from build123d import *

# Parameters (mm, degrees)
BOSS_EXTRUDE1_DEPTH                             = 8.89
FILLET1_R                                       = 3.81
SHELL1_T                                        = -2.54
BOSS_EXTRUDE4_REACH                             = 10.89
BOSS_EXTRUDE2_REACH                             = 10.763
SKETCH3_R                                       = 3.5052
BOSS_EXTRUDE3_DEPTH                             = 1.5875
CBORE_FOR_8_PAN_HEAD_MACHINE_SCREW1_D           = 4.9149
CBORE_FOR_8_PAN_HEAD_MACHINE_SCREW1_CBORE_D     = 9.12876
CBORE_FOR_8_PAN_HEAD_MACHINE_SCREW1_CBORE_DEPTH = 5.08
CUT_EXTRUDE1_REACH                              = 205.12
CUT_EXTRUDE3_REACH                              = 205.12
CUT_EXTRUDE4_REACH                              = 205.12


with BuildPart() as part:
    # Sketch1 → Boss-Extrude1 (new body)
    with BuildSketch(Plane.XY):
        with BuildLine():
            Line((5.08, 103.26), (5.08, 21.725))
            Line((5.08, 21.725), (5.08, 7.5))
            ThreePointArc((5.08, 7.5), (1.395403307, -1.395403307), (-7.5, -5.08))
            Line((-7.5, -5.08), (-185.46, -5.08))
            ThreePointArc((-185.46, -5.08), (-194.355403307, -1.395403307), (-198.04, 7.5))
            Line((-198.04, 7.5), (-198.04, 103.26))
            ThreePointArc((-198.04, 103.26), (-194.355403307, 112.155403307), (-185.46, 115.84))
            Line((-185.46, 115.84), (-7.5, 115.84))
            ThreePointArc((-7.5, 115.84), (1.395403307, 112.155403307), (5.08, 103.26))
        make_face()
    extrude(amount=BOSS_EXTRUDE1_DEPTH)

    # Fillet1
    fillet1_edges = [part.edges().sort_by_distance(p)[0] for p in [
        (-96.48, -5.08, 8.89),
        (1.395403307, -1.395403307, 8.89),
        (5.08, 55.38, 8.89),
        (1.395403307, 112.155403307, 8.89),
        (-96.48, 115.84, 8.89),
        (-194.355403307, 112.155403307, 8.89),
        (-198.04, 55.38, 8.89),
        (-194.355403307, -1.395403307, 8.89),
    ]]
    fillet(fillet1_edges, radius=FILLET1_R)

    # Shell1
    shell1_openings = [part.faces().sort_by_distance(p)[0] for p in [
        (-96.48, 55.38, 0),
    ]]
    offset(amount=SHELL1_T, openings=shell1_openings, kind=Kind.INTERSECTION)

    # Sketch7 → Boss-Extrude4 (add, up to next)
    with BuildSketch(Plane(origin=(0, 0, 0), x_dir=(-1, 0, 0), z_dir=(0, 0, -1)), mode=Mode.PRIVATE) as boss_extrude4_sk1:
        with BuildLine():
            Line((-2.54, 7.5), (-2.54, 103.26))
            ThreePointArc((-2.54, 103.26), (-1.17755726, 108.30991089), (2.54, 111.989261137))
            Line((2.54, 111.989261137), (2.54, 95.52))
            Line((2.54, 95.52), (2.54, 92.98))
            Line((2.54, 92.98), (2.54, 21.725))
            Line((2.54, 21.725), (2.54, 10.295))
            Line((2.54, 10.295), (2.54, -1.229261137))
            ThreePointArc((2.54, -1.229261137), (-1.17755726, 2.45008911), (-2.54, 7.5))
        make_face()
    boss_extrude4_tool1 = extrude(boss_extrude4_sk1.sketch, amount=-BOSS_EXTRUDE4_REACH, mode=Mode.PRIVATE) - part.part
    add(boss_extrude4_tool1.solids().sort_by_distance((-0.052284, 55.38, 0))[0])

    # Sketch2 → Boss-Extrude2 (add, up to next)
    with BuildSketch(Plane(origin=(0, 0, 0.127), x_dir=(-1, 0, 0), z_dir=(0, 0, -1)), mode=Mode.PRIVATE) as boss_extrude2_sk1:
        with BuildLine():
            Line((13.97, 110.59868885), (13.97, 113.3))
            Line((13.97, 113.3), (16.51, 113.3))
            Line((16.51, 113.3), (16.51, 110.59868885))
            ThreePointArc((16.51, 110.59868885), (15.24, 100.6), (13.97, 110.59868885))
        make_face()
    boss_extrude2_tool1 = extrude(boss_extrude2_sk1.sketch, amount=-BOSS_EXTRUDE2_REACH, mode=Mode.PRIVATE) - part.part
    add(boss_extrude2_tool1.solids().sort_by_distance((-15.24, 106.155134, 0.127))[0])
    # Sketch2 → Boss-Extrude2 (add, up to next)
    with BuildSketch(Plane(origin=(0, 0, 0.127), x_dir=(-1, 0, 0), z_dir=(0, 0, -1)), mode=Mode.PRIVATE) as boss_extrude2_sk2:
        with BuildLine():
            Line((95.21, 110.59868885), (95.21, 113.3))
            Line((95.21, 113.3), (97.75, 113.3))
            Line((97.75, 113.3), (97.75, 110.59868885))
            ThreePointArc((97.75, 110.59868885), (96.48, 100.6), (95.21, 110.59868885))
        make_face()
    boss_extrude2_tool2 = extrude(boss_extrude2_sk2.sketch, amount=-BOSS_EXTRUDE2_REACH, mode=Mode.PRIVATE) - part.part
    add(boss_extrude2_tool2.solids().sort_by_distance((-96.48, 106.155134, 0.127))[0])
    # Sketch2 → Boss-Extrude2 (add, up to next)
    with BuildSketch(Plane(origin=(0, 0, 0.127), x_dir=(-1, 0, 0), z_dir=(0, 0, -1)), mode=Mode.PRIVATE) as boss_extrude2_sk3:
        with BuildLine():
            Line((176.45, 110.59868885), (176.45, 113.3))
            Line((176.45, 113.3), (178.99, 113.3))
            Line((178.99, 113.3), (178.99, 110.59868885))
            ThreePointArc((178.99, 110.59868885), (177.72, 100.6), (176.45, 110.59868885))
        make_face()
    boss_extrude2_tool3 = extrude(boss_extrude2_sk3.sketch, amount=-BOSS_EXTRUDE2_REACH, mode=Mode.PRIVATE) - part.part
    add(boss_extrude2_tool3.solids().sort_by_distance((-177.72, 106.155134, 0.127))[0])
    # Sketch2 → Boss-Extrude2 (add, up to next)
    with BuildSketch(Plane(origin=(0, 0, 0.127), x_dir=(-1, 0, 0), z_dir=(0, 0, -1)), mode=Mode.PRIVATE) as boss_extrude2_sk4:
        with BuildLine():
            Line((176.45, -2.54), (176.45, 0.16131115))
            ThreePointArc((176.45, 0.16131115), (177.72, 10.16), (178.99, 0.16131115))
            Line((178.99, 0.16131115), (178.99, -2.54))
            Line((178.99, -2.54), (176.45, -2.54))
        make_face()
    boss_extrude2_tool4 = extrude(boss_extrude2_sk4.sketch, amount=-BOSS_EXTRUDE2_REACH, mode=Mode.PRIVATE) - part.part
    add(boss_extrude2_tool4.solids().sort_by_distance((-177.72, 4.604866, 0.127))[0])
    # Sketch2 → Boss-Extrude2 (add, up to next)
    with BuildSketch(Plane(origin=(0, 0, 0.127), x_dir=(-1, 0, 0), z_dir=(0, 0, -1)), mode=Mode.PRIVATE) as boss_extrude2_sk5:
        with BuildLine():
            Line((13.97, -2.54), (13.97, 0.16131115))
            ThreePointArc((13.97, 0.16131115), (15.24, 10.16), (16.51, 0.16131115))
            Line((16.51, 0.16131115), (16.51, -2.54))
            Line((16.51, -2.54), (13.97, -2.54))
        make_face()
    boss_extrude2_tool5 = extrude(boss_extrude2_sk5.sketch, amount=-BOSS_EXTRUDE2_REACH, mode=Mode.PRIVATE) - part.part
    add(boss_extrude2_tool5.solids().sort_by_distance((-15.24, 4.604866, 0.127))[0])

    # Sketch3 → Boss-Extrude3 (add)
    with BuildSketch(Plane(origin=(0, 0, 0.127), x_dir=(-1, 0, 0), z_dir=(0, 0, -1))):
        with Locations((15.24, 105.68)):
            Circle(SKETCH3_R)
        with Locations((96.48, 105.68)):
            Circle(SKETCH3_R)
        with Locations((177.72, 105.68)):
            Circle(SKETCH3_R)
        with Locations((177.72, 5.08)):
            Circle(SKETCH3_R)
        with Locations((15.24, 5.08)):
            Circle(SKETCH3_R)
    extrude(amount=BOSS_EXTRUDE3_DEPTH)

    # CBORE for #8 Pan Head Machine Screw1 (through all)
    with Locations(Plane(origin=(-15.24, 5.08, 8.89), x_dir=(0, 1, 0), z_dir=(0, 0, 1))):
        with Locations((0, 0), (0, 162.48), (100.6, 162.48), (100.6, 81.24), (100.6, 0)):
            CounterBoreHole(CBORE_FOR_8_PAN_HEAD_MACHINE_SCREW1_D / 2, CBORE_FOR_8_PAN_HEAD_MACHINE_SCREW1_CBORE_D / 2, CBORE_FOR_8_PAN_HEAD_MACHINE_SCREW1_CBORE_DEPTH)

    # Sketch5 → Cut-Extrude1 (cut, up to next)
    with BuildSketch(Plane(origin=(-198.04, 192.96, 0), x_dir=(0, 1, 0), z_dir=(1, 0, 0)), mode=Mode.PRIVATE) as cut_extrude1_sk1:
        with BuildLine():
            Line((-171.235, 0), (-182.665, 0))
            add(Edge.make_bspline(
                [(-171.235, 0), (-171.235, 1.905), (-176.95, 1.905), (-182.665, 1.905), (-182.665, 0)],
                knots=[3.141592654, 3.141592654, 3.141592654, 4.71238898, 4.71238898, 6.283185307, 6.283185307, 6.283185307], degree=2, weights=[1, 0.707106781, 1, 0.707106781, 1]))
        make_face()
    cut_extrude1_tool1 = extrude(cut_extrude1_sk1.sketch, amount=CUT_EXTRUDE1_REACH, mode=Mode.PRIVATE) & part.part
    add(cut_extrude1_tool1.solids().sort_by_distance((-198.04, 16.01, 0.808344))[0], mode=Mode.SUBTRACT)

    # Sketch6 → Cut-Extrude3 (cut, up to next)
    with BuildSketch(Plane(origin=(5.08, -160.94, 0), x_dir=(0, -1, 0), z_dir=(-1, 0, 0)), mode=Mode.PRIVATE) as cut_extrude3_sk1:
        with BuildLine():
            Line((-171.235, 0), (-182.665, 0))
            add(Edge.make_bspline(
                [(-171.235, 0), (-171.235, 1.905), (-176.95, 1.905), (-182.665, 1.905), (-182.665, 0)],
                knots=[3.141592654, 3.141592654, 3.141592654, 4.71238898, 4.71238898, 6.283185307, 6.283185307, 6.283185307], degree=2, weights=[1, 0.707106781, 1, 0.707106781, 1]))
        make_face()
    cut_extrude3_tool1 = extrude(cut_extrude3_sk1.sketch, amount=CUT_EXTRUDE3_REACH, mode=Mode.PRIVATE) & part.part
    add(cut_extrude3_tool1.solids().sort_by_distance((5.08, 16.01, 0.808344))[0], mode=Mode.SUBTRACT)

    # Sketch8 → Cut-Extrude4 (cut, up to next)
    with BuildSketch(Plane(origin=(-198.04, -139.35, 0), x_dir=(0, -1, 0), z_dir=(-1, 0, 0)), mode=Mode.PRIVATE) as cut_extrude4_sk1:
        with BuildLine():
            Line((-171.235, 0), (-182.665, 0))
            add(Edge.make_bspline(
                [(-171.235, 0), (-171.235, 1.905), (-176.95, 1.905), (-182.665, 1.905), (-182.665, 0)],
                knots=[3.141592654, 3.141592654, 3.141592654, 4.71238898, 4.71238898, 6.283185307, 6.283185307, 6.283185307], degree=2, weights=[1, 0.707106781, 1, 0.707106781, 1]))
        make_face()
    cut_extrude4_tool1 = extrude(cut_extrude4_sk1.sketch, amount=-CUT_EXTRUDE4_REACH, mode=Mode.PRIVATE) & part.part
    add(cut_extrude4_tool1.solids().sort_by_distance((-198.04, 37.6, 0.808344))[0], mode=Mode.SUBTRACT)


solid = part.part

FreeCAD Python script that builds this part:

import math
import FreeCAD as App
import Part
import Sketcher
from FreeCAD import Vector
Q = App.Units.Quantity


def edges_at(feature, points):
    """Names of the edges that pass closest to the given points."""
    edges = feature.Shape.Edges
    near = lambda p: min(range(len(edges)), key=lambda i: edges[i].distToShape(Part.Vertex(*p))[0])
    return sorted({f"Edge{near(p) + 1}" for p in points})


def faces_at(feature, points):
    """Names of the faces that lie closest to the given points."""
    faces = feature.Shape.Faces
    near = lambda p: min(range(len(faces)), key=lambda i: faces[i].distToShape(Part.Vertex(*p))[0])
    return sorted({f"Face{near(p) + 1}" for p in points})

doc = App.newDocument("Part")
body = doc.addObject("PartDesign::Body", "Body")

# Sketch on XY plane
sketch1 = body.newObject("Sketcher::SketchObject", "Sketch")
sketch1.AttachmentSupport = (doc.getObject("XY_Plane"), [""])
sketch1.MapMode = "FlatFace"
sketch1.addGeometry([
    Part.LineSegment(Vector(5, 8, 0), Vector(5, 103, 0)),  # 0
    Part.ArcOfCircle(Part.Circle(Vector(-8, 103, 0), Vector(0, 0, 1), 13), math.radians(0), math.radians(90)),  # 1
    Part.LineSegment(Vector(-8, 116, 0), Vector(-185, 116, 0)),  # 2
    Part.ArcOfCircle(Part.Circle(Vector(-185, 103, 0), Vector(0, 0, 1), 13), math.radians(90), math.radians(180)),  # 3
    Part.LineSegment(Vector(-198, 103, 0), Vector(-198, 8, 0)),  # 4
    Part.ArcOfCircle(Part.Circle(Vector(-185, 8, 0), Vector(0, 0, 1), 13), math.radians(-180), math.radians(-90)),  # 5
    Part.LineSegment(Vector(-185, -5, 0), Vector(-8, -5, 0)),  # 6
    Part.ArcOfCircle(Part.Circle(Vector(-8, 8, 0), Vector(0, 0, 1), 13), math.radians(-90), math.radians(0)),  # 7
], False)
sketch1.addConstraint([
    Sketcher.Constraint("Tangent", 0, 2, 1, 1),
    Sketcher.Constraint("Tangent", 1, 2, 2, 1),
    Sketcher.Constraint("Tangent", 2, 2, 3, 1),
    Sketcher.Constraint("Tangent", 3, 2, 4, 1),
    Sketcher.Constraint("Tangent", 4, 2, 5, 1),
    Sketcher.Constraint("Tangent", 5, 2, 6, 1),
    Sketcher.Constraint("Tangent", 6, 2, 7, 1),
    Sketcher.Constraint("Tangent", 7, 2, 0, 1),
    Sketcher.Constraint("Vertical", 0),
    Sketcher.Constraint("Horizontal", 2),
    Sketcher.Constraint("Vertical", 4),
    Sketcher.Constraint("Horizontal", 6),
    Sketcher.Constraint("Equal", 1, 3),
    Sketcher.Constraint("Equal", 3, 5),
    Sketcher.Constraint("Equal", 5, 7),
    Sketcher.Constraint("DistanceX", -1, 1, 0, 2, Q("0.2 in")),
    Sketcher.Constraint("DistanceY", 5, 2, -1, 1, Q("0.2 in")),
    Sketcher.Constraint("Radius", 1, 12.58),
    Sketcher.Constraint("DistanceX", 2, 2, 2, 1, 177.96),
    Sketcher.Constraint("DistanceY", 0, 1, 0, 2, 95.76),
])
pad1 = body.newObject("PartDesign::Pad", "Pad")
pad1.Profile = sketch1
pad1.Length = Q("0.35 in")
doc.recompute()

fillet = body.newObject("PartDesign::Fillet", "Fillet")
fillet.Base = (pad1, edges_at(pad1, [
    (-96.48, -5.08, 8.89),
    (1.395, -1.395, 8.89),
    (5.08, 55.38, 8.89),
    (1.395, 112.155, 8.89),
    (-96.48, 115.84, 8.89),
    (-194.355, 112.155, 8.89),
    (-198.04, 55.38, 8.89),
    (-194.355, -1.395, 8.89),
]))
fillet.Radius = Q("0.15 in")
doc.recompute()

thickness = body.newObject("PartDesign::Thickness", "Thickness")
thickness.Base = (fillet, faces_at(fillet, [(-96.48, 55.38, 0)]))
thickness.Value = Q("0.1 in")
thickness.Reversed = True
thickness.Join = "Intersection"

# Sketch on XY plane
sketch2 = body.newObject("Sketcher::SketchObject", "Sketch001")
sketch2.AttachmentSupport = (doc.getObject("XY_Plane"), [""])
sketch2.MapMode = "FlatFace"
sketch2.addGeometry([
    Part.LineSegment(Vector(3, 103, 0), Vector(3, 8, 0)),
    Part.ArcOfCircle(Part.Circle(Vector(-8, 8, 0), Vector(0, 0, 1), 10), math.radians(-60), math.radians(0)),
    Part.LineSegment(Vector(-3, -1, 0), Vector(-3, 112, 0)),
    Part.ArcOfCircle(Part.Circle(Vector(-8, 103, 0), Vector(0, 0, 1), 10), math.radians(0), math.radians(60)),
], False)
sketch2.addConstraint([
    Sketcher.Constraint("Tangent", 0, 2, 1, 2),
    Sketcher.Constraint("Coincident", 1, 1, 2, 1),
    Sketcher.Constraint("Coincident", 2, 2, 3, 2),
    Sketcher.Constraint("Tangent", 3, 1, 0, 1),
    Sketcher.Constraint("Vertical", 0),
    Sketcher.Constraint("Vertical", 2),
    Sketcher.Constraint("Equal", 1, 3),
    Sketcher.Constraint("DistanceX", -1, 1, 0, 2, Q("0.1 in")),
    Sketcher.Constraint("DistanceX", 1, 1, -1, 1, Q("0.1 in")),
    Sketcher.Constraint("Radius", 1, 10.04),
    Sketcher.Constraint("DistanceY", 0, 2, 0, 1, 95.76),
    Sketcher.Constraint("DistanceY", -1, 1, 1, 3, 7.5),
])
pad2 = body.newObject("PartDesign::Pad", "Pad001")
pad2.Profile = sketch2
pad2.Type = "UpToFirst"

# Sketch on XY plane
sketch3 = body.newObject("Sketcher::SketchObject", "Sketch002")
sketch3.AttachmentSupport = (doc.getObject("XY_Plane"), [""])
sketch3.MapMode = "FlatFace"
sketch3.AttachmentOffset = App.Placement(Vector(0, 0, 0.005 * 25.4), App.Rotation())
sketch3.addGeometry([
    Part.LineSegment(Vector(-14, 113.3, 0), Vector(-14, 110.6, 0)),
    Part.ArcOfCircle(Part.Circle(Vector(-15.2, 105.7, 0), Vector(0, 0, 1), 5.1), math.radians(104), math.radians(436)),
    Part.LineSegment(Vector(-16.5, 110.6, 0), Vector(-16.5, 113.3, 0)),
    Part.LineSegment(Vector(-16.5, 113.3, 0), Vector(-14, 113.3, 0)),
], False)
sketch3.addConstraint([
    Sketcher.Constraint("Coincident", 0, 2, 1, 2),
    Sketcher.Constraint("Coincident", 1, 1, 2, 1),
    Sketcher.Constraint("Coincident", 2, 2, 3, 1),
    Sketcher.Constraint("Coincident", 3, 2, 0, 1),
    Sketcher.Constraint("Vertical", 0),
    Sketcher.Constraint("Vertical", 2),
    Sketcher.Constraint("Horizontal", 3),
    Sketcher.Constraint("Horizontal", 0, 2, 1, 1),
    Sketcher.Constraint("Radius", 1, Q("0.2 in")),
    Sketcher.Constraint("DistanceX", 3, 1, 3, 2, Q("0.1 in")),
    Sketcher.Constraint("DistanceX", 1, 3, -1, 1, Q("0.6 in")),
    Sketcher.Constraint("DistanceY", 1, 3, 2, 2, Q("0.3 in")),
    Sketcher.Constraint("DistanceY", -1, 1, 1, 3, 105.68),
])
pad3 = body.newObject("PartDesign::Pad", "Pad002")
pad3.Profile = sketch3
pad3.Type = "UpToFirst"

# Sketch on XY plane
sketch4 = body.newObject("Sketcher::SketchObject", "Sketch003")
sketch4.AttachmentSupport = (doc.getObject("XY_Plane"), [""])
sketch4.MapMode = "FlatFace"
sketch4.AttachmentOffset = App.Placement(Vector(0, 0, 0.005 * 25.4), App.Rotation())
sketch4.addGeometry([
    Part.LineSegment(Vector(-95.2, 113.3, 0), Vector(-95.2, 110.6, 0)),
    Part.ArcOfCircle(Part.Circle(Vector(-96.5, 105.7, 0), Vector(0, 0, 1), 5.1), math.radians(104), math.radians(436)),
    Part.LineSegment(Vector(-97.8, 110.6, 0), Vector(-97.8, 113.3, 0)),
    Part.LineSegment(Vector(-97.8, 113.3, 0), Vector(-95.2, 113.3, 0)),
], False)
sketch4.addConstraint([
    Sketcher.Constraint("Coincident", 0, 2, 1, 2),
    Sketcher.Constraint("Coincident", 1, 1, 2, 1),
    Sketcher.Constraint("Coincident", 2, 2, 3, 1),
    Sketcher.Constraint("Coincident", 3, 2, 0, 1),
    Sketcher.Constraint("Vertical", 0),
    Sketcher.Constraint("Vertical", 2),
    Sketcher.Constraint("Horizontal", 3),
    Sketcher.Constraint("Horizontal", 0, 2, 1, 1),
    Sketcher.Constraint("Radius", 1, Q("0.2 in")),
    Sketcher.Constraint("DistanceX", 3, 1, 3, 2, Q("0.1 in")),
    Sketcher.Constraint("DistanceY", 1, 3, 2, 2, Q("0.3 in")),
    Sketcher.Constraint("DistanceX", 1, 3, -1, 1, 96.48),
    Sketcher.Constraint("DistanceY", -1, 1, 1, 3, 105.68),
])
pad4 = body.newObject("PartDesign::Pad", "Pad003")
pad4.Profile = sketch4
pad4.Type = "UpToFirst"

# Sketch on XY plane
sketch5 = body.newObject("Sketcher::SketchObject", "Sketch004")
sketch5.AttachmentSupport = (doc.getObject("XY_Plane"), [""])
sketch5.MapMode = "FlatFace"
sketch5.AttachmentOffset = App.Placement(Vector(0, 0, 0.005 * 25.4), App.Rotation())
sketch5.addGeometry([
    Part.LineSegment(Vector(-176.4, 113.3, 0), Vector(-176.4, 110.6, 0)),
    Part.ArcOfCircle(Part.Circle(Vector(-177.7, 105.7, 0), Vector(0, 0, 1), 5.1), math.radians(104), math.radians(436)),
    Part.LineSegment(Vector(-179, 110.6, 0), Vector(-179, 113.3, 0)),
    Part.LineSegment(Vector(-179, 113.3, 0), Vector(-176.4, 113.3, 0)),
], False)
sketch5.addConstraint([
    Sketcher.Constraint("Coincident", 0, 2, 1, 2),
    Sketcher.Constraint("Coincident", 1, 1, 2, 1),
    Sketcher.Constraint("Coincident", 2, 2, 3, 1),
    Sketcher.Constraint("Coincident", 3, 2, 0, 1),
    Sketcher.Constraint("Vertical", 0),
    Sketcher.Constraint("Vertical", 2),
    Sketcher.Constraint("Horizontal", 3),
    Sketcher.Constraint("Horizontal", 0, 2, 1, 1),
    Sketcher.Constraint("Radius", 1, Q("0.2 in")),
    Sketcher.Constraint("DistanceX", 3, 1, 3, 2, Q("0.1 in")),
    Sketcher.Constraint("DistanceY", 1, 3, 2, 2, Q("0.3 in")),
    Sketcher.Constraint("DistanceX", 1, 3, -1, 1, 177.72),
    Sketcher.Constraint("DistanceY", -1, 1, 1, 3, 105.68),
])
pad5 = body.newObject("PartDesign::Pad", "Pad004")
pad5.Profile = sketch5
pad5.Type = "UpToFirst"

# Sketch on XY plane
sketch6 = body.newObject("Sketcher::SketchObject", "Sketch005")
sketch6.AttachmentSupport = (doc.getObject("XY_Plane"), [""])
sketch6.MapMode = "FlatFace"
sketch6.AttachmentOffset = App.Placement(Vector(0, 0, 0.005 * 25.4), App.Rotation())
sketch6.addGeometry([
    Part.LineSegment(Vector(-176.4, 0.2, 0), Vector(-176.4, -2.5, 0)),
    Part.LineSegment(Vector(-176.4, -2.5, 0), Vector(-179, -2.5, 0)),
    Part.LineSegment(Vector(-179, -2.5, 0), Vector(-179, 0.2, 0)),
    Part.ArcOfCircle(Part.Circle(Vector(-177.7, 5.1, 0), Vector(0, 0, 1), 5.1), math.radians(-76), math.radians(256)),
], False)
sketch6.addConstraint([
    Sketcher.Constraint("Coincident", 0, 2, 1, 1),
    Sketcher.Constraint("Coincident", 1, 2, 2, 1),
    Sketcher.Constraint("Coincident", 2, 2, 3, 2),
    Sketcher.Constraint("Coincident", 3, 1, 0, 1),
    Sketcher.Constraint("Vertical", 0),
    Sketcher.Constraint("Horizontal", 1),
    Sketcher.Constraint("Vertical", 2),
    Sketcher.Constraint("Horizontal", 2, 2, 3, 1),
    Sketcher.Constraint("Radius", 3, Q("0.2 in")),
    Sketcher.Constraint("DistanceX", 1, 2, 1, 1, Q("0.1 in")),
    Sketcher.Constraint("DistanceY", -1, 1, 3, 3, Q("0.2 in")),
    Sketcher.Constraint("DistanceY", 0, 2, -1, 1, Q("0.1 in")),
    Sketcher.Constraint("DistanceX", 3, 3, -1, 1, 177.72),
])
pad6 = body.newObject("PartDesign::Pad", "Pad005")
pad6.Profile = sketch6
pad6.Type = "UpToFirst"

# Sketch on XY plane
sketch7 = body.newObject("Sketcher::SketchObject", "Sketch006")
sketch7.AttachmentSupport = (doc.getObject("XY_Plane"), [""])
sketch7.MapMode = "FlatFace"
sketch7.AttachmentOffset = App.Placement(Vector(0, 0, 0.005 * 25.4), App.Rotation())
sketch7.addGeometry([
    Part.LineSegment(Vector(-14, 0.2, 0), Vector(-14, -2.5, 0)),
    Part.LineSegment(Vector(-14, -2.5, 0), Vector(-16.5, -2.5, 0)),
    Part.LineSegment(Vector(-16.5, -2.5, 0), Vector(-16.5, 0.2, 0)),
    Part.ArcOfCircle(Part.Circle(Vector(-15.2, 5.1, 0), Vector(0, 0, 1), 5.1), math.radians(-76), math.radians(256)),
], False)
sketch7.addConstraint([
    Sketcher.Constraint("Coincident", 0, 2, 1, 1),
    Sketcher.Constraint("Coincident", 1, 2, 2, 1),
    Sketcher.Constraint("Coincident", 2, 2, 3, 2),
    Sketcher.Constraint("Coincident", 3, 1, 0, 1),
    Sketcher.Constraint("Vertical", 0),
    Sketcher.Constraint("Horizontal", 1),
    Sketcher.Constraint("Vertical", 2),
    Sketcher.Constraint("Horizontal", 2, 2, 3, 1),
    Sketcher.Constraint("Radius", 3, Q("0.2 in")),
    Sketcher.Constraint("DistanceX", 1, 2, 1, 1, Q("0.1 in")),
    Sketcher.Constraint("DistanceX", 3, 3, -1, 1, Q("0.6 in")),
    Sketcher.Constraint("DistanceY", -1, 1, 3, 3, Q("0.2 in")),
    Sketcher.Constraint("DistanceY", 0, 2, -1, 1, Q("0.1 in")),
])
pad7 = body.newObject("PartDesign::Pad", "Pad006")
pad7.Profile = sketch7
pad7.Type = "UpToFirst"

# Sketch on XY plane
sketch8 = body.newObject("Sketcher::SketchObject", "Sketch007")
sketch8.AttachmentSupport = (doc.getObject("XY_Plane"), [""])
sketch8.MapMode = "FlatFace"
sketch8.AttachmentOffset = App.Placement(Vector(0, 0, 0.005 * 25.4), App.Rotation())
sketch8.addGeometry([
    Part.Circle(Vector(-15.2, 105.7, 0), Vector(0, 0, 1), 3.5),  # 0
    Part.Circle(Vector(-96.5, 105.7, 0), Vector(0, 0, 1), 3.5),  # 1
    Part.Circle(Vector(-177.7, 105.7, 0), Vector(0, 0, 1), 3.5),  # 2
    Part.Circle(Vector(-177.7, 5.1, 0), Vector(0, 0, 1), 3.5),  # 3
    Part.Circle(Vector(-15.2, 5.1, 0), Vector(0, 0, 1), 3.5),  # 4
], False)
sketch8.addConstraint([
    Sketcher.Constraint("Equal", 0, 1),
    Sketcher.Constraint("Equal", 1, 2),
    Sketcher.Constraint("Equal", 2, 3),
    Sketcher.Constraint("Equal", 3, 4),
    Sketcher.Constraint("Horizontal", 0, 3, 1, 3),
    Sketcher.Constraint("Horizontal", 1, 3, 2, 3),
    Sketcher.Constraint("Horizontal", 3, 3, 4, 3),
    Sketcher.Constraint("Vertical", 2, 3, 3, 3),
    Sketcher.Constraint("Vertical", 0, 3, 4, 3),
    Sketcher.Constraint("Diameter", 0, Q("0.276 in")),
    Sketcher.Constraint("DistanceX", 0, 3, -1, 1, Q("0.6 in")),
    Sketcher.Constraint("DistanceY", -1, 1, 3, 3, Q("0.2 in")),
    Sketcher.Constraint("DistanceY", -1, 1, 0, 3, 105.68),
    Sketcher.Constraint("DistanceX", 1, 3, -1, 1, 96.48),
    Sketcher.Constraint("DistanceX", 2, 3, -1, 1, 177.72),
])
pad8 = body.newObject("PartDesign::Pad", "Pad007")
pad8.Profile = sketch8
pad8.Length = Q("0.0625 in")
pad8.Reversed = True

# Sketch on XY plane
sketch9 = body.newObject("Sketcher::SketchObject", "Sketch008")
sketch9.AttachmentSupport = (doc.getObject("XY_Plane"), [""])
sketch9.MapMode = "FlatFace"
sketch9.AttachmentOffset = App.Placement(Vector(0, 0, 0.35 * 25.4), App.Rotation())
sketch9.addGeometry([
    Part.Circle(Vector(-15.2, 5.1, 0), Vector(0, 0, 1), 2.5),  # 0
    Part.Circle(Vector(-177.7, 5.1, 0), Vector(0, 0, 1), 2.5),  # 1
    Part.Circle(Vector(-177.7, 105.7, 0), Vector(0, 0, 1), 2.5),  # 2
    Part.Circle(Vector(-96.5, 105.7, 0), Vector(0, 0, 1), 2.5),  # 3
    Part.Circle(Vector(-15.2, 105.7, 0), Vector(0, 0, 1), 2.5),  # 4
], False)
sketch9.addConstraint([
    Sketcher.Constraint("Equal", 0, 1),
    Sketcher.Constraint("Equal", 1, 2),
    Sketcher.Constraint("Equal", 2, 3),
    Sketcher.Constraint("Equal", 3, 4),
    Sketcher.Constraint("Horizontal", 0, 3, 1, 3),
    Sketcher.Constraint("Horizontal", 2, 3, 3, 3),
    Sketcher.Constraint("Horizontal", 3, 3, 4, 3),
    Sketcher.Constraint("Vertical", 1, 3, 2, 3),
    Sketcher.Constraint("Vertical", 0, 3, 4, 3),
    Sketcher.Constraint("Diameter", 0, Q("0.1935 in")),
    Sketcher.Constraint("DistanceX", 0, 3, -1, 1, Q("0.6 in")),
    Sketcher.Constraint("DistanceY", -1, 1, 0, 3, Q("0.2 in")),
    Sketcher.Constraint("DistanceX", 1, 3, -1, 1, 177.72),
    Sketcher.Constraint("DistanceY", -1, 1, 2, 3, 105.68),
    Sketcher.Constraint("DistanceX", 3, 3, -1, 1, 96.48),
])
doc.recompute()
hole = body.newObject("PartDesign::Hole", "Hole")
hole.Profile = sketch9
hole.ThreadType = "None"
hole.Diameter = Q("0.1935 in")
hole.DepthType = "ThroughAll"
hole.HoleCutType = "Counterbore"
hole.HoleCutDiameter = Q("0.3594 in")
hole.HoleCutDepth = Q("0.2 in")

# Sketch on YZ plane
sketch10 = body.newObject("Sketcher::SketchObject", "Sketch009")
sketch10.AttachmentSupport = (doc.getObject("YZ_Plane"), [""])
sketch10.MapMode = "FlatFace"
sketch10.AttachmentOffset = App.Placement(Vector(0, 0, -198.04), App.Rotation())
sketch10.addGeometry([
    Part.LineSegment(Vector(10.295, 0, 0), Vector(21.725, 0, 0)),
    Part.BSplineCurve([Vector(21.725, 0, 0), Vector(21.725, 1.905, 0), Vector(16.01, 1.905, 0), Vector(10.295, 1.905, 0), Vector(10.295, 0, 0)], [3, 2, 3], [3.141592654, 4.71238898, 6.283185307], False, 2, [1, 0.707106781, 1, 0.707106781, 1], False),
], False)
sketch10.addConstraint([
    Sketcher.Constraint("Block", 1),
    Sketcher.Constraint("Coincident", 0, 1, 1, 2),
    Sketcher.Constraint("Coincident", 1, 1, 0, 2),
])
pocket1 = body.newObject("PartDesign::Pocket", "Pocket")
pocket1.Profile = sketch10
pocket1.Type = "UpToFirst"
pocket1.Reversed = True

# Sketch on YZ plane
sketch11 = body.newObject("Sketcher::SketchObject", "Sketch010")
sketch11.AttachmentSupport = (doc.getObject("YZ_Plane"), [""])
sketch11.MapMode = "FlatFace"
sketch11.AttachmentOffset = App.Placement(Vector(0, 0, 0.2 * 25.4), App.Rotation())
sketch11.addGeometry([
    Part.LineSegment(Vector(21.725, 0, 0), Vector(10.295, 0, 0)),
    Part.BSplineCurve([Vector(10.295, 0, 0), Vector(10.295, 1.905, 0), Vector(16.01, 1.905, 0), Vector(21.725, 1.905, 0), Vector(21.725, 0, 0)], [3, 2, 3], [3.141592654, 4.71238898, 6.283185307], False, 2, [1, 0.707106781, 1, 0.707106781, 1], False),
], False)
sketch11.addConstraint([
    Sketcher.Constraint("Block", 1),
    Sketcher.Constraint("Coincident", 0, 1, 1, 2),
    Sketcher.Constraint("Coincident", 1, 1, 0, 2),
])
pocket2 = body.newObject("PartDesign::Pocket", "Pocket001")
pocket2.Profile = sketch11
pocket2.Type = "UpToFirst"

# Sketch on YZ plane
sketch12 = body.newObject("Sketcher::SketchObject", "Sketch011")
sketch12.AttachmentSupport = (doc.getObject("YZ_Plane"), [""])
sketch12.MapMode = "FlatFace"
sketch12.AttachmentOffset = App.Placement(Vector(0, 0, -198.04), App.Rotation())
sketch12.addGeometry([
    Part.LineSegment(Vector(43.315, 0, 0), Vector(31.885, 0, 0)),
    Part.BSplineCurve([Vector(31.885, 0, 0), Vector(31.885, 1.905, 0), Vector(37.6, 1.905, 0), Vector(43.315, 1.905, 0), Vector(43.315, 0, 0)], [3, 2, 3], [3.141592654, 4.71238898, 6.283185307], False, 2, [1, 0.707106781, 1, 0.707106781, 1], False),
], False)
sketch12.addConstraint([
    Sketcher.Constraint("Block", 1),
    Sketcher.Constraint("Coincident", 0, 1, 1, 2),
    Sketcher.Constraint("Coincident", 1, 1, 0, 2),
])
pocket3 = body.newObject("PartDesign::Pocket", "Pocket002")
pocket3.Profile = sketch12
pocket3.Type = "UpToFirst"
pocket3.Reversed = True

doc.recompute()
